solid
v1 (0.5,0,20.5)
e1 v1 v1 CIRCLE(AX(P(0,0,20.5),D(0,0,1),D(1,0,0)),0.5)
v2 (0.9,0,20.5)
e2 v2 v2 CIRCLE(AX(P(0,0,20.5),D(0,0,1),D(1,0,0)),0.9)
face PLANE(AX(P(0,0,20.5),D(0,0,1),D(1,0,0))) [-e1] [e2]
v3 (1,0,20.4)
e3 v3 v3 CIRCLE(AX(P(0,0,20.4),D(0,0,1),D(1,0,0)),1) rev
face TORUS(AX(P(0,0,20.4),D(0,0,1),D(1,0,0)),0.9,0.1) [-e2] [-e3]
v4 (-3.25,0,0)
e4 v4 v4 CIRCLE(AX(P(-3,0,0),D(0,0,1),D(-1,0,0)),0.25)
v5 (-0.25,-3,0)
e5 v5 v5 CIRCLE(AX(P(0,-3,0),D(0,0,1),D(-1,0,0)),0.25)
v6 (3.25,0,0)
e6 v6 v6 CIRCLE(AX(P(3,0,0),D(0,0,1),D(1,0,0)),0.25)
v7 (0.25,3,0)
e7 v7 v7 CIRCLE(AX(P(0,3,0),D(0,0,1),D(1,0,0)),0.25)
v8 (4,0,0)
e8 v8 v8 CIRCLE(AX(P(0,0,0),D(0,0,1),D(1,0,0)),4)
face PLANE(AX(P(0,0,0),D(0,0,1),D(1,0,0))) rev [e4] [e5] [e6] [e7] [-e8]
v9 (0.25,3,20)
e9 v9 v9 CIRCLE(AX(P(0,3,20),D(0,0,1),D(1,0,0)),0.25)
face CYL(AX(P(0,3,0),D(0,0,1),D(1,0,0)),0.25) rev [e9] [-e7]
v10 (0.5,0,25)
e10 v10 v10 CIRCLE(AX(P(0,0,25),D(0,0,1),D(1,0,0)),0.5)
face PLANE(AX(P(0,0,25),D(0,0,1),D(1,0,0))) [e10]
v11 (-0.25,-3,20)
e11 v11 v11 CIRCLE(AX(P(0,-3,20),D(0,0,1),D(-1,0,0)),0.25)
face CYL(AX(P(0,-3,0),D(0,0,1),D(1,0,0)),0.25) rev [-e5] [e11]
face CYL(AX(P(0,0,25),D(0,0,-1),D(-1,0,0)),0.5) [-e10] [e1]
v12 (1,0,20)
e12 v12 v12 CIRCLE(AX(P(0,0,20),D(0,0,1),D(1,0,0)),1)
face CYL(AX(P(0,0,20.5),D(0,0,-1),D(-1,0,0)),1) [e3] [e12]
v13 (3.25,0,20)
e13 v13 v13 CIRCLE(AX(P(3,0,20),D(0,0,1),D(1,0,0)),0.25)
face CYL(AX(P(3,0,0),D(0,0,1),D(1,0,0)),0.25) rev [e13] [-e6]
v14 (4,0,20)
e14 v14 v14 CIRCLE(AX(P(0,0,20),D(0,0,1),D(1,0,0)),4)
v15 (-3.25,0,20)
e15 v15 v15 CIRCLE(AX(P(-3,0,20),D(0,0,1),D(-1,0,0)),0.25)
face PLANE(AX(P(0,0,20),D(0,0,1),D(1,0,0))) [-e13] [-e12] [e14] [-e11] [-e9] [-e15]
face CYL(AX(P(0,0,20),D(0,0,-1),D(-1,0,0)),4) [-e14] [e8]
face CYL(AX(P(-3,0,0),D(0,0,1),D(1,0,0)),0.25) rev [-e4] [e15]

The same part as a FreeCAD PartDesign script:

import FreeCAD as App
import Part
import Sketcher

V = App.Vector
Q = App.Units.Quantity


def edges_at(feature, points):
    """Names of the edges that pass closest to the given points."""
    edges = feature.Shape.Edges
    near = lambda p: min(range(len(edges)), key=lambda i: edges[i].distToShape(Part.Vertex(*p))[0])
    return sorted({f"Edge{near(p) + 1}" for p in points})

doc = App.newDocument("Part")
params = doc.addObject("Spreadsheet::Sheet", "Params")
for row, (alias, value) in enumerate([
    ("sketch1_diameter", "8 mm"),
    ("pad1_length", "20 mm"),
    ("sketch2_diameter", "2 mm"),
    ("sketch2_diameter2", "1 mm"),
    ("pad2_length", "0.5 mm"),
    ("sketch3_diameter", "1 mm"),
    ("pad3_length", "5 mm"),
    ("fillet_radius", "0.1 mm"),
    ("sketch4_diameter", "0.5 mm"),
], start=1):
    params.set(f"A{row}", alias)
    params.set(f"B{row}", "=" + value)
    params.setAlias(f"B{row}", alias)

body = doc.addObject("PartDesign::Body", "Body")

sketch1 = body.newObject("Sketcher::SketchObject", "Sketch")
sketch1.AttachmentSupport = (doc.getObject("XY_Plane"), [""])
sketch1.MapMode = "FlatFace"
sketch1.addGeometry(Part.Circle(V(0, 0, 0), V(0, 0, 1), 4), False)
sketch1.addConstraint([
    Sketcher.Constraint("Coincident", 0, 3, -1, 1),
    Sketcher.Constraint("Diameter", 0, Q("8 mm")),
])
sketch1.setExpression("Constraints[1]", "Params.sketch1_diameter")
pad1 = body.newObject("PartDesign::Pad", "Pad")
pad1.Profile = sketch1
pad1.setExpression("Length", "Params.pad1_length")

sketch2 = body.newObject("Sketcher::SketchObject", "Sketch001")
sketch2.AttachmentSupport = (doc.getObject("XY_Plane"), [""])
sketch2.MapMode = "FlatFace"
sketch2.AttachmentOffset = App.Placement(V(0, 0, 20), App.Rotation())
sketch2.addGeometry([
    Part.Circle(V(0, 0, 0), V(0, 0, 1), 1),
    Part.Circle(V(0, 0, 0), V(0, 0, 1), 0.5),
], False)
sketch2.addConstraint([
    Sketcher.Constraint("Coincident", 0, 3, -1, 1),
    Sketcher.Constraint("Coincident", 1, 3, -1, 1),
    Sketcher.Constraint("Diameter", 0, Q("2 mm")),
    Sketcher.Constraint("Diameter", 1, Q("1 mm")),
])
sketch2.setExpression("Constraints[2]", "Params.sketch2_diameter")
sketch2.setExpression("Constraints[3]", "Params.sketch2_diameter2")
pad2 = body.newObject("PartDesign::Pad", "Pad001")
pad2.Profile = sketch2
pad2.setExpression("Length", "Params.pad2_length")

sketch3 = body.newObject("Sketcher::SketchObject", "Sketch002")
sketch3.AttachmentSupport = (doc.getObject("XY_Plane"), [""])
sketch3.MapMode = "FlatFace"
sketch3.AttachmentOffset = App.Placement(V(0, 0, 20), App.Rotation())
sketch3.addGeometry(Part.Circle(V(0, 0, 0), V(0, 0, 1), 0.5), False)
sketch3.addConstraint([
    Sketcher.Constraint("Coincident", 0, 3, -1, 1),
    Sketcher.Constraint("Diameter", 0, Q("1 mm")),
])
sketch3.setExpression("Constraints[1]", "Params.sketch3_diameter")
pad3 = body.newObject("PartDesign::Pad", "Pad002")
pad3.Profile = sketch3
pad3.setExpression("Length", "Params.pad3_length")
doc.recompute()

fillet = body.newObject("PartDesign::Fillet", "Fillet")
fillet.Base = (pad3, edges_at(pad3, [(-1, 0, 20.5)]))
fillet.setExpression("Radius", "Params.fillet_radius")

sketch4 = body.newObject("Sketcher::SketchObject", "Sketch003")
sketch4.AttachmentSupport = (doc.getObject("XY_Plane"), [""])
sketch4.MapMode = "FlatFace"
sketch4.AttachmentOffset = App.Placement(V(0, 0, 20), App.Rotation())
sketch4.addGeometry([
    Part.Circle(V(0, 3, 0), V(0, 0, 1), 0.25),
    Part.Circle(V(0, -3, 0), V(0, 0, 1), 0.25),
    Part.Circle(V(3, 0, 0), V(0, 0, 1), 0.25),
    Part.Circle(V(-3, 0, 0), V(0, 0, 1), 0.25),
], False)
sketch4.addConstraint([
    Sketcher.Constraint("Equal", 0, 1),
    Sketcher.Constraint("Equal", 1, 2),
    Sketcher.Constraint("Equal", 2, 3),
    Sketcher.Constraint("Symmetric", 0, 3, 1, 3, -1, 1),
    Sketcher.Constraint("Symmetric", 2, 3, 3, 3, -1, 1),
    Sketcher.Constraint("PointOnObject", 0, 3, -2),
    Sketcher.Constraint("PointOnObject", 2, 3, -1),
    Sketcher.Constraint("Diameter", 0, Q("0.5 mm")),
    Sketcher.Constraint("DistanceY", -1, 1, 0, 3, Q("3 mm")),
    Sketcher.Constraint("DistanceX", -1, 1, 2, 3, Q("3 mm")),
])
sketch4.setExpression("Constraints[7]", "Params.sketch4_diameter")
pocket1 = body.newObject("PartDesign::Pocket", "Pocket")
pocket1.Profile = sketch4
pocket1.Type = "ThroughAll"

doc.recompute()
